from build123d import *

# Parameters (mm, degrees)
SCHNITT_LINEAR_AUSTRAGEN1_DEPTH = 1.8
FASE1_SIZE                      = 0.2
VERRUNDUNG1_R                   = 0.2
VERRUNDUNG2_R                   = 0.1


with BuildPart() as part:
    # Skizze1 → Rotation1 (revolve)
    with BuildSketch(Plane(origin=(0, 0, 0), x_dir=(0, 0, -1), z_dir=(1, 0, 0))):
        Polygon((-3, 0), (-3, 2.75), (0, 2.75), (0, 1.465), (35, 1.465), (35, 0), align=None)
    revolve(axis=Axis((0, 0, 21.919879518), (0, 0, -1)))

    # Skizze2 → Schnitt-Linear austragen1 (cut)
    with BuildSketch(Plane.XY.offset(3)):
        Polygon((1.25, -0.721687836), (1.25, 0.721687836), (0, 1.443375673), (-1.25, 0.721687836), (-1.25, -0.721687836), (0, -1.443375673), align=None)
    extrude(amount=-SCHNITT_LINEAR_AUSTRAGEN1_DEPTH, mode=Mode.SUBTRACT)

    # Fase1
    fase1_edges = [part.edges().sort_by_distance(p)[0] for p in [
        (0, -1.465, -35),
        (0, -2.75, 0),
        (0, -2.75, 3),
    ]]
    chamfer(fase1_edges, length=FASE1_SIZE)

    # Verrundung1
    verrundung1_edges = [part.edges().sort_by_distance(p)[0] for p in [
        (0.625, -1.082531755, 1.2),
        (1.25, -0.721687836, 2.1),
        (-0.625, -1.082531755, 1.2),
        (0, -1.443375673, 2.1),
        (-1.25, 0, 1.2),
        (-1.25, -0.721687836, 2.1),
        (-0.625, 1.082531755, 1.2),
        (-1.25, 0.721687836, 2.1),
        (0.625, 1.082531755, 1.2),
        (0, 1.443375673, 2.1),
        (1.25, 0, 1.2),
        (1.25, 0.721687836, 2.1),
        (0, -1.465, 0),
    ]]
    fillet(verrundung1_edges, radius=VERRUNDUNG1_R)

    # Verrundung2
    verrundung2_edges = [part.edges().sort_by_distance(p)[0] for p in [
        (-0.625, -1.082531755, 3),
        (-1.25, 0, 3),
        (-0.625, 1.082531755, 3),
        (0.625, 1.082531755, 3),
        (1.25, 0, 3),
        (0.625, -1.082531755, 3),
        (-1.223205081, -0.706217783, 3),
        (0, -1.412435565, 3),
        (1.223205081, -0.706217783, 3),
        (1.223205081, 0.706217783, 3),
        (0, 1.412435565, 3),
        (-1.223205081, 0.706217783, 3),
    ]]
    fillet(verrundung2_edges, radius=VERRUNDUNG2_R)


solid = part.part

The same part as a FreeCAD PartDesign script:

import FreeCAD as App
import Part
import Sketcher
Q = App.Units.Quantity


def edges_at(feature, points):
    """Names of the edges that pass closest to the given points."""
    edges = feature.Shape.Edges
    near = lambda p: min(range(len(edges)), key=lambda i: edges[i].distToShape(Part.Vertex(*p))[0])
    return sorted({f"Edge{near(p) + 1}" for p in points})


def add_polygon(sketch, points):
    """Adds a closed chain of lines whose ends are joined by coincident constraints."""
    first, n = sketch.GeometryCount, len(points)
    for a, b in zip(points, points[1:] + points[:1]):
        sketch.addGeometry(Part.LineSegment(App.Vector(*a, 0), App.Vector(*b, 0)), False)
    for i in range(n):
        sketch.addConstraint(Sketcher.Constraint("Coincident", first + i, 2, first + (i + 1) % n, 1))

doc = App.newDocument("Part")
body = doc.addObject("PartDesign::Body", "Body")

# Sketch on YZ plane
sketch1 = doc.addObject("Sketcher::SketchObject", "Sketch")
body.addObject(sketch1)
sketch1.AttachmentSupport = (doc.YZ_Plane, [""])
sketch1.MapMode = "FlatFace"
add_polygon(sketch1, [(2.75, 3), (0, 3), (0, -35), (1.465, -35), (1.465, 0), (2.75, 0)])  # lines 0-5
sketch1.addConstraint([
    Sketcher.Constraint("Horizontal", 0),
    Sketcher.Constraint("Vertical", 1),
    Sketcher.Constraint("Horizontal", 2),
    Sketcher.Constraint("Vertical", 3),
    Sketcher.Constraint("Horizontal", 4),
    Sketcher.Constraint("Vertical", 5),
    Sketcher.Constraint("PointOnObject", 0, 2, -2),
    Sketcher.Constraint("PointOnObject", 3, 2, -1),
    Sketcher.Constraint("DistanceY", 1, 2, 1, 1, 38.0),
    Sketcher.Constraint("DistanceY", 3, 1, 3, 2, 35.0),
    Sketcher.Constraint("DistanceX", 0, 2, 0, 1, 2.75),
    Sketcher.Constraint("DistanceX", 2, 1, 2, 2, 1.465),
])
revolution = doc.addObject("PartDesign::Revolution", "Revolution")
body.addObject(revolution)
revolution.Profile = sketch1
revolution.ReferenceAxis = (sketch1, ["V_Axis"])
revolution.Angle = 360

# Sketch on XY plane
sketch2 = doc.addObject("Sketcher::SketchObject", "Sketch001")
body.addObject(sketch2)
sketch2.AttachmentSupport = (doc.XY_Plane, [""])
sketch2.MapMode = "FlatFace"
sketch2.AttachmentOffset = App.Placement(App.Vector(0, 0, 3), App.Rotation())
add_polygon(sketch2, [(1.25, -0.721688), (1.25, 0.721688), (0, 1.443376), (-1.25, 0.721688), (-1.25, -0.721688), (0, -1.443376)])  # lines 0-5
sketch2.addConstraint([
    Sketcher.Constraint("Vertical", 0),
    Sketcher.Constraint("Vertical", 3),
    Sketcher.Constraint("Symmetric", 0, 2, 3, 2, -1, 1),
    Sketcher.Constraint("Symmetric", 1, 2, 4, 2, -1, 1),
    Sketcher.Constraint("PointOnObject", 1, 2, -2),
    Sketcher.Constraint("Parallel", 2, 5),
    Sketcher.Constraint("Horizontal", 0, 2, 2, 2),
    Sketcher.Constraint("Angle", 1, Q("150 deg")),
    Sketcher.Constraint("DistanceX", 2, 2, 0, 2, 2.5),
    Sketcher.Constraint("DistanceY", 0, 1, 0, 2, 1.443376),
])
pocket1 = doc.addObject("PartDesign::Pocket", "Pocket")
body.addObject(pocket1)
pocket1.Profile = sketch2
pocket1.Length = 1.8
doc.recompute()

chamfer = doc.addObject("PartDesign::Chamfer", "Chamfer")
body.addObject(chamfer)
chamfer.Base = (pocket1, edges_at(pocket1, [(0, -1.465, -35), (0, -2.75, 0), (0, -2.75, 3)]))
chamfer.Size = 0.2
doc.recompute()

fillet = doc.addObject("PartDesign::Fillet", "Fillet")
body.addObject(fillet)
fillet.Base = (chamfer, edges_at(chamfer, [
    (0.625, -1.083, 1.2),
    (1.25, -0.722, 2.1),
    (-0.625, -1.083, 1.2),
    (0, -1.443, 2.1),
    (-1.25, 0, 1.2),
    (-1.25, -0.722, 2.1),
    (-0.625, 1.083, 1.2),
    (-1.25, 0.722, 2.1),
    (0.625, 1.083, 1.2),
    (0, 1.443, 2.1),
    (1.25, 0, 1.2),
    (1.25, 0.722, 2.1),
    (0, -1.465, 0),
]))
fillet.Radius = 0.2
doc.recompute()

fillet2 = doc.addObject("PartDesign::Fillet", "Fillet001")
body.addObject(fillet2)
fillet2.Base = (fillet, edges_at(fillet, [
    (-0.625, -1.083, 3),
    (-1.25, 0, 3),
    (-0.625, 1.083, 3),
    (0.625, 1.083, 3),
    (1.25, 0, 3),
    (0.625, -1.083, 3),
    (-1.223, -0.706, 3),
    (0, -1.412, 3),
    (1.223, -0.706, 3),
    (1.223, 0.706, 3),
    (0, 1.412, 3),
    (-1.223, 0.706, 3),
]))
fillet2.Radius = 0.1

doc.recompute()
